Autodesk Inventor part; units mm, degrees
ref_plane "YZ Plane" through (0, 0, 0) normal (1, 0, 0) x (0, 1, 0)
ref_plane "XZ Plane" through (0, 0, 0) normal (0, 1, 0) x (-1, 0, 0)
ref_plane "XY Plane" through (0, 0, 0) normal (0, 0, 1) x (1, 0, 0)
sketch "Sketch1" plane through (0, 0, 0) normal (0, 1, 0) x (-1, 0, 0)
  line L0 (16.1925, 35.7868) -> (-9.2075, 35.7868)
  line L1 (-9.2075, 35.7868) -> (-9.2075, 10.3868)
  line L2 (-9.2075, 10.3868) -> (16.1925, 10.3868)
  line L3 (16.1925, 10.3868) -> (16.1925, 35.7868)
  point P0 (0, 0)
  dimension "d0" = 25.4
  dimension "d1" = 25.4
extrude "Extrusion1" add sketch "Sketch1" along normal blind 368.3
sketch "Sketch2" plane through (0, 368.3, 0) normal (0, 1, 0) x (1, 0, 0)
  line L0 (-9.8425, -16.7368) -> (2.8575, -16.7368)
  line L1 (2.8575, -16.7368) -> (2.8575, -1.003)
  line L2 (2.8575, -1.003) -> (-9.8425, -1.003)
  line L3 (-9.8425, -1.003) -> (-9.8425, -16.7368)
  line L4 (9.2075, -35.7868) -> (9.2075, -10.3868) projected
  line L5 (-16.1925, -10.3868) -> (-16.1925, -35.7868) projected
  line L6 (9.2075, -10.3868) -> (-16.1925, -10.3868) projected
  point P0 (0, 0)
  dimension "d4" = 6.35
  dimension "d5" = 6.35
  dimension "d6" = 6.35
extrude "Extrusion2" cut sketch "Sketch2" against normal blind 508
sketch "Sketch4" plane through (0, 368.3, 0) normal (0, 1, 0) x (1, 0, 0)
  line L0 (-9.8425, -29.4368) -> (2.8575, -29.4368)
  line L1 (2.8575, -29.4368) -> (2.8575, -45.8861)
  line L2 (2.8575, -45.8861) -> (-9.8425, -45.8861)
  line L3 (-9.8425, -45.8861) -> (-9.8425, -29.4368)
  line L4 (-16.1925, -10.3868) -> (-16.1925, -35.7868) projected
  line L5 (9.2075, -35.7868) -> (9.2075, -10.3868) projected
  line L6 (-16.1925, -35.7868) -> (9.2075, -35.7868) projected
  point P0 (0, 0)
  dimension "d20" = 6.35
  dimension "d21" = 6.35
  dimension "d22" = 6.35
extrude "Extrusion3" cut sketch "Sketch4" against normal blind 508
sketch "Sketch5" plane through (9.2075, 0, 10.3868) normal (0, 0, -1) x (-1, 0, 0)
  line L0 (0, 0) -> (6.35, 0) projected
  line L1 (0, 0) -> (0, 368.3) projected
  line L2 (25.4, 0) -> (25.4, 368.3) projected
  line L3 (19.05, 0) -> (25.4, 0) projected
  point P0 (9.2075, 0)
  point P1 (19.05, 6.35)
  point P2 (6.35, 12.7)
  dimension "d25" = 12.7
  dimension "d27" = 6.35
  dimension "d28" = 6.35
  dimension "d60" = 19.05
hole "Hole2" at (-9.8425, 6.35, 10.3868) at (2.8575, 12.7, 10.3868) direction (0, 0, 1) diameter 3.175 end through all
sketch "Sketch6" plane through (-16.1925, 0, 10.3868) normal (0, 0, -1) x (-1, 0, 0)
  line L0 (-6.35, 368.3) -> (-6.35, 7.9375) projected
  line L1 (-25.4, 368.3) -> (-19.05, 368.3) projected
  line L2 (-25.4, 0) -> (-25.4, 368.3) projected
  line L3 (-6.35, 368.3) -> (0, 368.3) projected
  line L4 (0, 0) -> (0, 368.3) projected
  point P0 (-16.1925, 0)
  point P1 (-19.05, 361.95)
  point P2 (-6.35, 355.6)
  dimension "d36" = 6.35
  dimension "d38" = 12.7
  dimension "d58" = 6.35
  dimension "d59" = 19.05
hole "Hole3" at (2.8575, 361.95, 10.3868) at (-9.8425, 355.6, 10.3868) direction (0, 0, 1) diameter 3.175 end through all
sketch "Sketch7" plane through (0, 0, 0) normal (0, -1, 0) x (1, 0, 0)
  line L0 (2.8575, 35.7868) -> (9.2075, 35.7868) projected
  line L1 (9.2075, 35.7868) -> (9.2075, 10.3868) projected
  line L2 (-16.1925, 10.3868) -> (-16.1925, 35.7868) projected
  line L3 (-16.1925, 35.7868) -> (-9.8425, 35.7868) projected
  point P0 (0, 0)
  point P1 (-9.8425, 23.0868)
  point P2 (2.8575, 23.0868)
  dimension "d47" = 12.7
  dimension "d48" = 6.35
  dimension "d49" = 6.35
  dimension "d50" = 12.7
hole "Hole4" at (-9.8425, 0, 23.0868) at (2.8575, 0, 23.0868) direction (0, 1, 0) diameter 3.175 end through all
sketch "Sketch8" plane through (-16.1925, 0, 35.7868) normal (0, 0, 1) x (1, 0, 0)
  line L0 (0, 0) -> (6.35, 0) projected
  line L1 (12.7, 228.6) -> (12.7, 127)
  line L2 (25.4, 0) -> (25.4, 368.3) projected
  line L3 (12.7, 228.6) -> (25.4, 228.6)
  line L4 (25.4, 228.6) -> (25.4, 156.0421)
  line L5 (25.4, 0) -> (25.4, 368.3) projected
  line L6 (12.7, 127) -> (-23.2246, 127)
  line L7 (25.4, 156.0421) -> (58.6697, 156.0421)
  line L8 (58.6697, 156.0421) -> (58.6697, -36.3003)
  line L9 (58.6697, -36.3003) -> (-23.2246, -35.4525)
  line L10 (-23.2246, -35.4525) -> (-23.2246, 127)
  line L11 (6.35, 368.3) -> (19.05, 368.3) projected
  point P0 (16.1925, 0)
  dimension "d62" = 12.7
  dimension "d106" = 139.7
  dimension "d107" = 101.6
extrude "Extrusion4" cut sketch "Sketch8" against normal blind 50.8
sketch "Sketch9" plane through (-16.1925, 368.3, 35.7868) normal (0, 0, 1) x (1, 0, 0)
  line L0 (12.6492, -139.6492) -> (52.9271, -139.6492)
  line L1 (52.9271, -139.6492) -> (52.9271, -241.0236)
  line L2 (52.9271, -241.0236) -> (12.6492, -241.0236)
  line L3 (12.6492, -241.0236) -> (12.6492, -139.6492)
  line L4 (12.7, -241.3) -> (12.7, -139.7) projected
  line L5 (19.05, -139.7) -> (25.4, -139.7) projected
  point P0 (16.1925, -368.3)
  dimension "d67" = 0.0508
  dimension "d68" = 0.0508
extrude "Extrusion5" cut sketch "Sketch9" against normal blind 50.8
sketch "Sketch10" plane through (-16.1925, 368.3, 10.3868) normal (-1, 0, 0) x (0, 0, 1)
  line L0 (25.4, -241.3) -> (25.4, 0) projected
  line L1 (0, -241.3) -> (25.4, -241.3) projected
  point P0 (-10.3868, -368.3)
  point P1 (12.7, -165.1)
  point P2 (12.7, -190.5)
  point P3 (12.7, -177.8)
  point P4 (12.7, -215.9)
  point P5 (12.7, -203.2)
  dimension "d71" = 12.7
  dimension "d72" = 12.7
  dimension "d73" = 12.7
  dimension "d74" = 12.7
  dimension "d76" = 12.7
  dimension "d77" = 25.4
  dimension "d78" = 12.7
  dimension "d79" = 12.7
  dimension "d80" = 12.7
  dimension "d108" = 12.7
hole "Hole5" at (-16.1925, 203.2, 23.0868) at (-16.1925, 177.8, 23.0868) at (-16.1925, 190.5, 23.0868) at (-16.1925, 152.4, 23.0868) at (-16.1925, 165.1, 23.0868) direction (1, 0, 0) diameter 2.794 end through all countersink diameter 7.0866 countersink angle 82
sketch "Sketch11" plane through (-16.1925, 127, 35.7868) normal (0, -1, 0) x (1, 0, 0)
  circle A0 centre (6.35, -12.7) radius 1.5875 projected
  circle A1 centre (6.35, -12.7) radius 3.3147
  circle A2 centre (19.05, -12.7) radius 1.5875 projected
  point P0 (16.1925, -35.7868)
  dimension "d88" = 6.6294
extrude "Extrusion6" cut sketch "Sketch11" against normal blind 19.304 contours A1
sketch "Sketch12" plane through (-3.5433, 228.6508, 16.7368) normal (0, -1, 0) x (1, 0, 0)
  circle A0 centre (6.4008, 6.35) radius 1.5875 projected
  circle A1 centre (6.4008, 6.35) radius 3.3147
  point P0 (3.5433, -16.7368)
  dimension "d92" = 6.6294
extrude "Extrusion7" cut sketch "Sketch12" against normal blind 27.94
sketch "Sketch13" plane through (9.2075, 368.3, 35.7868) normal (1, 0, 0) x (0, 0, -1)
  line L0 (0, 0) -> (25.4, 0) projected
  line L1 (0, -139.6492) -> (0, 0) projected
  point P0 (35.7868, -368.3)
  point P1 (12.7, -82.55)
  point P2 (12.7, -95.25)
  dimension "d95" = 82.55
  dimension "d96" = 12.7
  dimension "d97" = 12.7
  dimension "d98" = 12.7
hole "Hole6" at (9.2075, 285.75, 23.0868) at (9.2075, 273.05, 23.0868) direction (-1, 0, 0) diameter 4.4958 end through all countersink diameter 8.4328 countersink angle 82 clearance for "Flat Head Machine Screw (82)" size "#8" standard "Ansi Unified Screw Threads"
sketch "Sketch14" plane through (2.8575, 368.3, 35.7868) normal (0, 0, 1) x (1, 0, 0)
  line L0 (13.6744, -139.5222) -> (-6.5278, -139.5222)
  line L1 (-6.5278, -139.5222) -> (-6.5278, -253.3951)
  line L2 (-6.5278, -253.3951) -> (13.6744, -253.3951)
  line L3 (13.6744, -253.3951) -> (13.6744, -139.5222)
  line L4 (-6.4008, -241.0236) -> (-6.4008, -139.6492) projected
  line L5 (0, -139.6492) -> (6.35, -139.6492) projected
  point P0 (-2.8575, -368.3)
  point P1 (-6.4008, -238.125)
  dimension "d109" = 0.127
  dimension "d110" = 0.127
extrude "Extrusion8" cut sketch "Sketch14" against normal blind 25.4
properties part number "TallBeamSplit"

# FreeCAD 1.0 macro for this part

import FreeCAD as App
import Part
import Sketcher

V = App.Vector
Q = App.Units.Quantity

doc = App.newDocument("Part")
body = doc.addObject("PartDesign::Body", "Body")

# Sketch on XZ plane
sketch1 = doc.addObject("Sketcher::SketchObject", "Sketch")
body.addObject(sketch1)
sketch1.AttachmentSupport = (doc.XZ_Plane, [""])
sketch1.MapMode = "FlatFace"
sketch1.addGeometry(Part.LineSegment(V(-16, 10, 0), V(-16, 36, 0)), False)
sketch1.addGeometry(Part.LineSegment(V(-16, 36, 0), V(9, 36, 0)), False)
sketch1.addGeometry(Part.LineSegment(V(9, 36, 0), V(9, 10, 0)), False)
sketch1.addGeometry(Part.LineSegment(V(9, 10, 0), V(-16, 10, 0)), False)
sketch1.addConstraint(Sketcher.Constraint("Coincident", 0, 2, 1, 1))
sketch1.addConstraint(Sketcher.Constraint("Coincident", 1, 2, 2, 1))
sketch1.addConstraint(Sketcher.Constraint("Coincident", 2, 2, 3, 1))
sketch1.addConstraint(Sketcher.Constraint("Coincident", 3, 2, 0, 1))
sketch1.addConstraint(Sketcher.Constraint("Vertical", 0))
sketch1.addConstraint(Sketcher.Constraint("Horizontal", 1))
sketch1.addConstraint(Sketcher.Constraint("Vertical", 2))
sketch1.addConstraint(Sketcher.Constraint("Horizontal", 3))
sketch1.addConstraint(Sketcher.Constraint("Equal", 3, 0))
sketch1.addConstraint(Sketcher.Constraint("DistanceX", 1, 1, 1, 2, Q("1 in")))
sketch1.addConstraint(Sketcher.Constraint("DistanceX", 0, 2, -1, 1, Q("0.6375 in")))
sketch1.addConstraint(Sketcher.Constraint("DistanceY", -1, 1, 0, 2, 35.7868))
pad1 = doc.addObject("PartDesign::Pad", "Pad")
body.addObject(pad1)
pad1.Profile = sketch1
pad1.Length = Q("14.5 in")
pad1.Reversed = True

# Sketch on XZ plane
sketch2 = doc.addObject("Sketcher::SketchObject", "Sketch001")
body.addObject(sketch2)
sketch2.AttachmentSupport = (doc.XZ_Plane, [""])
sketch2.MapMode = "FlatFace"
sketch2.AttachmentOffset = App.Placement(V(0, 0, -14.5 * 25.4), App.Rotation())
sketch2.addGeometry(Part.LineSegment(V(-10, 17, 0), V(3, 17, 0)), False)
sketch2.addGeometry(Part.LineSegment(V(3, 17, 0), V(3, 1, 0)), False)
sketch2.addGeometry(Part.LineSegment(V(3, 1, 0), V(-10, 1, 0)), False)
sketch2.addGeometry(Part.LineSegment(V(-10, 1, 0), V(-10, 17, 0)), False)
sketch2.addConstraint(Sketcher.Constraint("Coincident", 0, 2, 1, 1))
sketch2.addConstraint(Sketcher.Constraint("Coincident", 1, 2, 2, 1))
sketch2.addConstraint(Sketcher.Constraint("Coincident", 2, 2, 3, 1))
sketch2.addConstraint(Sketcher.Constraint("Coincident", 3, 2, 0, 1))
sketch2.addConstraint(Sketcher.Constraint("Horizontal", 0))
sketch2.addConstraint(Sketcher.Constraint("Vertical", 1))
sketch2.addConstraint(Sketcher.Constraint("Horizontal", 2))
sketch2.addConstraint(Sketcher.Constraint("Vertical", 3))
sketch2.addConstraint(Sketcher.Constraint("DistanceX", 0, 1, 0, 2, Q("0.5 in")))
sketch2.addConstraint(Sketcher.Constraint("DistanceY", 1, 2, 1, 1, 15.7338))
sketch2.addConstraint(Sketcher.Constraint("DistanceX", -1, 1, 0, 2, Q("0.1125 in")))
sketch2.addConstraint(Sketcher.Constraint("DistanceY", -1, 1, 1, 2, Q("0.0395 in")))
pocket1 = doc.addObject("PartDesign::Pocket", "Pocket")
body.addObject(pocket1)
pocket1.Profile = sketch2
pocket1.Length = Q("20 in")
pocket1.Reversed = True

# Sketch on XZ plane
sketch3 = doc.addObject("Sketcher::SketchObject", "Sketch002")
body.addObject(sketch3)
sketch3.AttachmentSupport = (doc.XZ_Plane, [""])
sketch3.MapMode = "FlatFace"
sketch3.AttachmentOffset = App.Placement(V(0, 0, -14.5 * 25.4), App.Rotation())
sketch3.addGeometry(Part.LineSegment(V(3, 29, 0), V(-10, 29, 0)), False)
sketch3.addGeometry(Part.LineSegment(V(-10, 29, 0), V(-10, 46, 0)), False)
sketch3.addGeometry(Part.LineSegment(V(-10, 46, 0), V(3, 46, 0)), False)
sketch3.addGeometry(Part.LineSegment(V(3, 46, 0), V(3, 29, 0)), False)
sketch3.addConstraint(Sketcher.Constraint("Coincident", 0, 2, 1, 1))
sketch3.addConstraint(Sketcher.Constraint("Coincident", 1, 2, 2, 1))
sketch3.addConstraint(Sketcher.Constraint("Coincident", 2, 2, 3, 1))
sketch3.addConstraint(Sketcher.Constraint("Coincident", 3, 2, 0, 1))
sketch3.addConstraint(Sketcher.Constraint("Horizontal", 0))
sketch3.addConstraint(Sketcher.Constraint("Vertical", 1))
sketch3.addConstraint(Sketcher.Constraint("Horizontal", 2))
sketch3.addConstraint(Sketcher.Constraint("Vertical", 3))
sketch3.addConstraint(Sketcher.Constraint("DistanceX", 0, 2, 0, 1, Q("0.5 in")))
sketch3.addConstraint(Sketcher.Constraint("DistanceY", 1, 1, 1, 2, Q("0.6476 in")))
sketch3.addConstraint(Sketcher.Constraint("DistanceX", 0, 2, -1, 1, Q("0.3875 in")))
sketch3.addConstraint(Sketcher.Constraint("DistanceY", -1, 1, 0, 2, 29.4368))
pocket2 = doc.addObject("PartDesign::Pocket", "Pocket001")
body.addObject(pocket2)
pocket2.Profile = sketch3
pocket2.Length = Q("20 in")
pocket2.Reversed = True

# Sketch on XY plane
sketch4 = doc.addObject("Sketcher::SketchObject", "Sketch003")
body.addObject(sketch4)
sketch4.AttachmentSupport = (doc.XY_Plane, [""])
sketch4.MapMode = "FlatFace"
sketch4.AttachmentOffset = App.Placement(V(0, 0, 10.3868), App.Rotation())
sketch4.addGeometry(Part.Circle(V(-9.8, 6.3, 0), V(0, 0, 1), 1.6), False)
sketch4.addGeometry(Part.Circle(V(2.9, 12.7, 0), V(0, 0, 1), 1.6), False)
sketch4.addConstraint(Sketcher.Constraint("Equal", 0, 1))
sketch4.addConstraint(Sketcher.Constraint("Diameter", 0, Q("0.125 in")))
sketch4.addConstraint(Sketcher.Constraint("DistanceY", -1, 1, 1, 3, Q("0.5 in")))
sketch4.addConstraint(Sketcher.Constraint("DistanceX", 0, 3, 1, 3, Q("0.5 in")))
sketch4.addConstraint(Sketcher.Constraint("DistanceY", -1, 1, 0, 3, Q("0.25 in")))
sketch4.addConstraint(Sketcher.Constraint("DistanceX", 0, 3, -1, 1, Q("0.3875 in")))
doc.recompute()
hole = doc.addObject("PartDesign::Hole", "Hole")
body.addObject(hole)
hole.Profile = sketch4
hole.ThreadType = "None"
hole.Diameter = Q("0.125 in")
hole.DepthType = "ThroughAll"
hole.Reversed = True

# Sketch on XY plane
sketch5 = doc.addObject("Sketcher::SketchObject", "Sketch004")
body.addObject(sketch5)
sketch5.AttachmentSupport = (doc.XY_Plane, [""])
sketch5.MapMode = "FlatFace"
sketch5.AttachmentOffset = App.Placement(V(0, 0, 10.3868), App.Rotation())
sketch5.addGeometry(Part.Circle(V(2.9, 361.9, 0), V(0, 0, 1), 1.6), False)
sketch5.addGeometry(Part.Circle(V(-9.8, 355.6, 0), V(0, 0, 1), 1.6), False)
sketch5.addConstraint(Sketcher.Constraint("Equal", 0, 1))
sketch5.addConstraint(Sketcher.Constraint("Diameter", 0, Q("0.125 in")))
sketch5.addConstraint(Sketcher.Constraint("DistanceY", -1, 1, 1, 3, Q("14 in")))
sketch5.addConstraint(Sketcher.Constraint("DistanceX", 1, 3, 0, 3, Q("0.5 in")))
sketch5.addConstraint(Sketcher.Constraint("DistanceY", -1, 1, 0, 3, Q("14.25 in")))
sketch5.addConstraint(Sketcher.Constraint("DistanceX", -1, 1, 0, 3, Q("0.1125 in")))
doc.recompute()
hole2 = doc.addObject("PartDesign::Hole", "Hole001")
body.addObject(hole2)
hole2.Profile = sketch5
hole2.ThreadType = "None"
hole2.Diameter = Q("0.125 in")
hole2.DepthType = "ThroughAll"
hole2.Reversed = True

# Sketch on XZ plane
sketch6 = doc.addObject("Sketcher::SketchObject", "Sketch005")
body.addObject(sketch6)
sketch6.AttachmentSupport = (doc.XZ_Plane, [""])
sketch6.MapMode = "FlatFace"
sketch6.addGeometry(Part.Circle(V(-9.8, 23.1, 0), V(0, 0, 1), 1.6), False)
sketch6.addGeometry(Part.Circle(V(2.9, 23.1, 0), V(0, 0, 1), 1.6), False)
sketch6.addConstraint(Sketcher.Constraint("Equal", 0, 1))
sketch6.addConstraint(Sketcher.Constraint("Horizontal", 0, 3, 1, 3))
sketch6.addConstraint(Sketcher.Constraint("Diameter", 0, Q("0.125 in")))
sketch6.addConstraint(Sketcher.Constraint("DistanceX", 0, 3, 1, 3, Q("0.5 in")))
sketch6.addConstraint(Sketcher.Constraint("DistanceX", 0, 3, -1, 1, Q("0.3875 in")))
sketch6.addConstraint(Sketcher.Constraint("DistanceY", -1, 1, 0, 3, 23.0868))
doc.recompute()
hole3 = doc.addObject("PartDesign::Hole", "Hole002")
body.addObject(hole3)
hole3.Profile = sketch6
hole3.ThreadType = "None"
hole3.Diameter = Q("0.125 in")
hole3.DepthType = "ThroughAll"

# Sketch on XY plane
sketch7 = doc.addObject("Sketcher::SketchObject", "Sketch006")
body.addObject(sketch7)
sketch7.AttachmentSupport = (doc.XY_Plane, [""])
sketch7.MapMode = "FlatFace"
sketch7.AttachmentOffset = App.Placement(V(0, 0, 35.7868), App.Rotation())
sketch7.addGeometry(Part.LineSegment(V(9, 229, 0), V(-3, 229, 0)), False)
sketch7.addGeometry(Part.LineSegment(V(-3, 229, 0), V(-3, 127, 0)), False)
sketch7.addGeometry(Part.LineSegment(V(-3, 127, 0), V(-39, 127, 0)), False)
sketch7.addGeometry(Part.LineSegment(V(-39, 127, 0), V(-39, -35, 0)), False)
sketch7.addGeometry(Part.LineSegment(V(-39, -35, 0), V(42, -36, 0)), False)
sketch7.addGeometry(Part.LineSegment(V(42, -36, 0), V(42, 156, 0)), False)
sketch7.addGeometry(Part.LineSegment(V(42, 156, 0), V(9, 156, 0)), False)
sketch7.addGeometry(Part.LineSegment(V(9, 156, 0), V(9, 229, 0)), False)
sketch7.addConstraint(Sketcher.Constraint("Coincident", 0, 2, 1, 1))
sketch7.addConstraint(Sketcher.Constraint("Coincident", 1, 2, 2, 1))
sketch7.addConstraint(Sketcher.Constraint("Coincident", 2, 2, 3, 1))
sketch7.addConstraint(Sketcher.Constraint("Coincident", 3, 2, 4, 1))
sketch7.addConstraint(Sketcher.Constraint("Coincident", 4, 2, 5, 1))
sketch7.addConstraint(Sketcher.Constraint("Coincident", 5, 2, 6, 1))
sketch7.addConstraint(Sketcher.Constraint("Coincident", 6, 2, 7, 1))
sketch7.addConstraint(Sketcher.Constraint("Coincident", 7, 2, 0, 1))
sketch7.addConstraint(Sketcher.Constraint("Horizontal", 0))
sketch7.addConstraint(Sketcher.Constraint("Vertical", 1))
sketch7.addConstraint(Sketcher.Constraint("Horizontal", 2))
sketch7.addConstraint(Sketcher.Constraint("Vertical", 3))
sketch7.addConstraint(Sketcher.Constraint("Vertical", 5))
sketch7.addConstraint(Sketcher.Constraint("Horizontal", 6))
sketch7.addConstraint(Sketcher.Constraint("Vertical", 7))
sketch7.addConstraint(Sketcher.Constraint("DistanceY", 1, 2, 1, 1, Q("4 in")))
sketch7.addConstraint(Sketcher.Constraint("DistanceX", 0, 2, 0, 1, Q("0.5 in")))
sketch7.addConstraint(Sketcher.Constraint("DistanceY", -1, 1, 0, 2, Q("9 in")))
sketch7.addConstraint(Sketcher.Constraint("DistanceY", 7, 1, 7, 2, Q("2.8566 in")))
sketch7.addConstraint(Sketcher.Constraint("DistanceX", 2, 2, 2, 1, 35.9246))
sketch7.addConstraint(Sketcher.Constraint("DistanceX", 6, 2, 6, 1, 33.2697))
sketch7.addConstraint(Sketcher.Constraint("DistanceY", 3, 2, 3, 1, 162.4525))
sketch7.addConstraint(Sketcher.Constraint("DistanceY", 5, 1, 5, 2, 192.3424))
sketch7.addConstraint(Sketcher.Constraint("DistanceX", 0, 2, -1, 1, Q("0.1375 in")))
pocket3 = doc.addObject("PartDesign::Pocket", "Pocket002")
body.addObject(pocket3)
pocket3.Profile = sketch7
pocket3.Length = Q("2 in")

# Sketch on XY plane
sketch8 = doc.addObject("Sketcher::SketchObject", "Sketch007")
body.addObject(sketch8)
sketch8.AttachmentSupport = (doc.XY_Plane, [""])
sketch8.MapMode = "FlatFace"
sketch8.AttachmentOffset = App.Placement(V(0, 0, 35.7868), App.Rotation())
sketch8.addGeometry(Part.LineSegment(V(37, 229, 0), V(-4, 229, 0)), False)
sketch8.addGeometry(Part.LineSegment(V(-4, 229, 0), V(-4, 127, 0)), False)
sketch8.addGeometry(Part.LineSegment(V(-4, 127, 0), V(37, 127, 0)), False)
sketch8.addGeometry(Part.LineSegment(V(37, 127, 0), V(37, 229, 0)), False)
sketch8.addConstraint(Sketcher.Constraint("Coincident", 0, 2, 1, 1))
sketch8.addConstraint(Sketcher.Constraint("Coincident", 1, 2, 2, 1))
sketch8.addConstraint(Sketcher.Constraint("Coincident", 2, 2, 3, 1))
sketch8.addConstraint(Sketcher.Constraint("Coincident", 3, 2, 0, 1))
sketch8.addConstraint(Sketcher.Constraint("Horizontal", 0))
sketch8.addConstraint(Sketcher.Constraint("Vertical", 1))
sketch8.addConstraint(Sketcher.Constraint("Horizontal", 2))
sketch8.addConstraint(Sketcher.Constraint("Vertical", 3))
sketch8.addConstraint(Sketcher.Constraint("DistanceY", -1, 1, 0, 2, Q("9.002 in")))
sketch8.addConstraint(Sketcher.Constraint("DistanceX", 0, 2, 0, 1, 40.278))
sketch8.addConstraint(Sketcher.Constraint("DistanceY", 1, 2, 1, 1, 101.3744))
sketch8.addConstraint(Sketcher.Constraint("DistanceX", 0, 2, -1, 1, Q("0.1395 in")))
pocket4 = doc.addObject("PartDesign::Pocket", "Pocket003")
body.addObject(pocket4)
pocket4.Profile = sketch8
pocket4.Length = Q("2 in")

# Sketch on YZ plane
sketch9 = doc.addObject("Sketcher::SketchObject", "Sketch008")
body.addObject(sketch9)
sketch9.AttachmentSupport = (doc.YZ_Plane, [""])
sketch9.MapMode = "FlatFace"
sketch9.AttachmentOffset = App.Placement(V(0, 0, -0.6375 * 25.4), App.Rotation())
sketch9.addGeometry(Part.Circle(V(203.2, 23.1, 0), V(0, 0, 1), 1.4), False)
sketch9.addGeometry(Part.Circle(V(177.8, 23.1, 0), V(0, 0, 1), 1.4), False)
sketch9.addGeometry(Part.Circle(V(190.5, 23.1, 0), V(0, 0, 1), 1.4), False)
sketch9.addGeometry(Part.Circle(V(152.4, 23.1, 0), V(0, 0, 1), 1.4), False)
sketch9.addGeometry(Part.Circle(V(165.1, 23.1, 0), V(0, 0, 1), 1.4), False)
sketch9.addConstraint(Sketcher.Constraint("Equal", 0, 1))
sketch9.addConstraint(Sketcher.Constraint("Equal", 1, 2))
sketch9.addConstraint(Sketcher.Constraint("Equal", 2, 3))
sketch9.addConstraint(Sketcher.Constraint("Equal", 3, 4))
sketch9.addConstraint(Sketcher.Constraint("Horizontal", 0, 3, 1, 3))
sketch9.addConstraint(Sketcher.Constraint("Horizontal", 1, 3, 2, 3))
sketch9.addConstraint(Sketcher.Constraint("Horizontal", 2, 3, 3, 3))
sketch9.addConstraint(Sketcher.Constraint("Horizontal", 3, 3, 4, 3))
sketch9.addConstraint(Sketcher.Constraint("Diameter", 0, Q("0.11 in")))
sketch9.addConstraint(Sketcher.Constraint("DistanceX", -1, 1, 0, 3, Q("8 in")))
sketch9.addConstraint(Sketcher.Constraint("DistanceX", -1, 1, 1, 3, Q("7 in")))
sketch9.addConstraint(Sketcher.Constraint("DistanceX", -1, 1, 3, 3, Q("6 in")))
sketch9.addConstraint(Sketcher.Constraint("DistanceX", 4, 3, 2, 3, Q("1 in")))
sketch9.addConstraint(Sketcher.Constraint("DistanceX", -1, 1, 2, 3, Q("7.5 in")))
sketch9.addConstraint(Sketcher.Constraint("DistanceY", -1, 1, 0, 3, 23.0868))
doc.recompute()
hole4 = doc.addObject("PartDesign::Hole", "Hole003")
body.addObject(hole4)
hole4.Profile = sketch9
hole4.ThreadType = "None"
hole4.Diameter = Q("0.11 in")
hole4.DepthType = "ThroughAll"
hole4.HoleCutType = "Countersink"
hole4.HoleCutDiameter = Q("0.279 in")
hole4.HoleCutCountersinkAngle = 82
hole4.Reversed = True

# Sketch on XZ plane
sketch10 = doc.addObject("Sketcher::SketchObject", "Sketch009")
body.addObject(sketch10)
sketch10.AttachmentSupport = (doc.XZ_Plane, [""])
sketch10.MapMode = "FlatFace"
sketch10.AttachmentOffset = App.Placement(V(0, 0, -5 * 25.4), App.Rotation())
sketch10.addGeometry(Part.Circle(V(-9.8, 23.1, 0), V(0, 0, 1), 3.3), False)
sketch10.addGeometry(Part.Circle(V(-9.8, 23.1, 0), V(0, 0, 1), 1.6), False)
sketch10.addConstraint(Sketcher.Constraint("Coincident", 1, 3, 0, 3))
sketch10.addConstraint(Sketcher.Constraint("Diameter", 0, Q("0.261 in")))
sketch10.addConstraint(Sketcher.Constraint("Diameter", 1, Q("0.125 in")))
sketch10.addConstraint(Sketcher.Constraint("DistanceX", 0, 3, -1, 1, Q("0.3875 in")))
sketch10.addConstraint(Sketcher.Constraint("DistanceY", -1, 1, 0, 3, 23.0868))
pocket5 = doc.addObject("PartDesign::Pocket", "Pocket004")
body.addObject(pocket5)
pocket5.Profile = sketch10
pocket5.Length = Q("0.76 in")

# Sketch on XZ plane
sketch11 = doc.addObject("Sketcher::SketchObject", "Sketch010")
body.addObject(sketch11)
sketch11.AttachmentSupport = (doc.XZ_Plane, [""])
sketch11.MapMode = "FlatFace"
sketch11.AttachmentOffset = App.Placement(V(0, 0, -9.002 * 25.4), App.Rotation())
sketch11.addGeometry(Part.Circle(V(2.9, 23.1, 0), V(0, 0, 1), 3.3), False)
sketch11.addGeometry(Part.Circle(V(2.9, 23.1, 0), V(0, 0, 1), 1.6), False)
sketch11.addConstraint(Sketcher.Constraint("Coincident", 1, 3, 0, 3))
sketch11.addConstraint(Sketcher.Constraint("Diameter", 0, Q("0.261 in")))
sketch11.addConstraint(Sketcher.Constraint("Diameter", 1, Q("0.125 in")))
sketch11.addConstraint(Sketcher.Constraint("DistanceX", -1, 1, 0, 3, Q("0.1125 in")))
sketch11.addConstraint(Sketcher.Constraint("DistanceY", -1, 1, 0, 3, 23.0868))
pocket6 = doc.addObject("PartDesign::Pocket", "Pocket005")
body.addObject(pocket6)
pocket6.Profile = sketch11
pocket6.Length = Q("1.1 in")

# Sketch on YZ plane
sketch12 = doc.addObject("Sketcher::SketchObject", "Sketch011")
body.addObject(sketch12)
sketch12.AttachmentSupport = (doc.YZ_Plane, [""])
sketch12.MapMode = "FlatFace"
sketch12.AttachmentOffset = App.Placement(V(0, 0, 0.3625 * 25.4), App.Rotation())
sketch12.addGeometry(Part.Circle(V(285.8, 23.1, 0), V(0, 0, 1), 2.2), False)
sketch12.addGeometry(Part.Circle(V(273.1, 23.1, 0), V(0, 0, 1), 2.2), False)
sketch12.addConstraint(Sketcher.Constraint("Equal", 0, 1))
sketch12.addConstraint(Sketcher.Constraint("Horizontal", 0, 3, 1, 3))
sketch12.addConstraint(Sketcher.Constraint("Diameter", 0, Q("0.177 in")))
sketch12.addConstraint(Sketcher.Constraint("DistanceX", 1, 3, 0, 3, Q("0.5 in")))
sketch12.addConstraint(Sketcher.Constraint("DistanceX", -1, 1, 0, 3, Q("11.25 in")))
sketch12.addConstraint(Sketcher.Constraint("DistanceY", -1, 1, 0, 3, 23.0868))
doc.recompute()
hole5 = doc.addObject("PartDesign::Hole", "Hole004")
body.addObject(hole5)
hole5.Profile = sketch12
hole5.ThreadType = "None"
hole5.Diameter = Q("0.177 in")
hole5.DepthType = "ThroughAll"
hole5.HoleCutType = "Countersink"
hole5.HoleCutDiameter = Q("0.332 in")
hole5.HoleCutCountersinkAngle = 82

# Sketch on XY plane
sketch13 = doc.addObject("Sketcher::SketchObject", "Sketch012")
body.addObject(sketch13)
sketch13.AttachmentSupport = (doc.XY_Plane, [""])
sketch13.MapMode = "FlatFace"
sketch13.AttachmentOffset = App.Placement(V(0, 0, 35.7868), App.Rotation())
sketch13.addGeometry(Part.LineSegment(V(17, 115, 0), V(17, 229, 0)), False)
sketch13.addGeometry(Part.LineSegment(V(17, 229, 0), V(-4, 229, 0)), False)
sketch13.addGeometry(Part.LineSegment(V(-4, 229, 0), V(-4, 115, 0)), False)
sketch13.addGeometry(Part.LineSegment(V(-4, 115, 0), V(17, 115, 0)), False)
sketch13.addConstraint(Sketcher.Constraint("Coincident", 0, 2, 1, 1))
sketch13.addConstraint(Sketcher.Constraint("Coincident", 1, 2, 2, 1))
sketch13.addConstraint(Sketcher.Constraint("Coincident", 2, 2, 3, 1))
sketch13.addConstraint(Sketcher.Constraint("Coincident", 3, 2, 0, 1))
sketch13.addConstraint(Sketcher.Constraint("Vertical", 0))
sketch13.addConstraint(Sketcher.Constraint("Horizontal", 1))
sketch13.addConstraint(Sketcher.Constraint("Vertical", 2))
sketch13.addConstraint(Sketcher.Constraint("Horizontal", 3))
sketch13.addConstraint(Sketcher.Constraint("DistanceY", -1, 1, 0, 2, Q("9.007 in")))
sketch13.addConstraint(Sketcher.Constraint("DistanceX", 1, 2, 1, 1, 20.2022))
sketch13.addConstraint(Sketcher.Constraint("DistanceY", 0, 1, 0, 2, Q("4.483189 in")))
sketch13.addConstraint(Sketcher.Constraint("DistanceX", 1, 2, -1, 1, Q("0.1445 in")))
pocket7 = doc.addObject("PartDesign::Pocket", "Pocket006")
body.addObject(pocket7)
pocket7.Profile = sketch13
pocket7.Length = Q("1 in")

doc.recompute()
